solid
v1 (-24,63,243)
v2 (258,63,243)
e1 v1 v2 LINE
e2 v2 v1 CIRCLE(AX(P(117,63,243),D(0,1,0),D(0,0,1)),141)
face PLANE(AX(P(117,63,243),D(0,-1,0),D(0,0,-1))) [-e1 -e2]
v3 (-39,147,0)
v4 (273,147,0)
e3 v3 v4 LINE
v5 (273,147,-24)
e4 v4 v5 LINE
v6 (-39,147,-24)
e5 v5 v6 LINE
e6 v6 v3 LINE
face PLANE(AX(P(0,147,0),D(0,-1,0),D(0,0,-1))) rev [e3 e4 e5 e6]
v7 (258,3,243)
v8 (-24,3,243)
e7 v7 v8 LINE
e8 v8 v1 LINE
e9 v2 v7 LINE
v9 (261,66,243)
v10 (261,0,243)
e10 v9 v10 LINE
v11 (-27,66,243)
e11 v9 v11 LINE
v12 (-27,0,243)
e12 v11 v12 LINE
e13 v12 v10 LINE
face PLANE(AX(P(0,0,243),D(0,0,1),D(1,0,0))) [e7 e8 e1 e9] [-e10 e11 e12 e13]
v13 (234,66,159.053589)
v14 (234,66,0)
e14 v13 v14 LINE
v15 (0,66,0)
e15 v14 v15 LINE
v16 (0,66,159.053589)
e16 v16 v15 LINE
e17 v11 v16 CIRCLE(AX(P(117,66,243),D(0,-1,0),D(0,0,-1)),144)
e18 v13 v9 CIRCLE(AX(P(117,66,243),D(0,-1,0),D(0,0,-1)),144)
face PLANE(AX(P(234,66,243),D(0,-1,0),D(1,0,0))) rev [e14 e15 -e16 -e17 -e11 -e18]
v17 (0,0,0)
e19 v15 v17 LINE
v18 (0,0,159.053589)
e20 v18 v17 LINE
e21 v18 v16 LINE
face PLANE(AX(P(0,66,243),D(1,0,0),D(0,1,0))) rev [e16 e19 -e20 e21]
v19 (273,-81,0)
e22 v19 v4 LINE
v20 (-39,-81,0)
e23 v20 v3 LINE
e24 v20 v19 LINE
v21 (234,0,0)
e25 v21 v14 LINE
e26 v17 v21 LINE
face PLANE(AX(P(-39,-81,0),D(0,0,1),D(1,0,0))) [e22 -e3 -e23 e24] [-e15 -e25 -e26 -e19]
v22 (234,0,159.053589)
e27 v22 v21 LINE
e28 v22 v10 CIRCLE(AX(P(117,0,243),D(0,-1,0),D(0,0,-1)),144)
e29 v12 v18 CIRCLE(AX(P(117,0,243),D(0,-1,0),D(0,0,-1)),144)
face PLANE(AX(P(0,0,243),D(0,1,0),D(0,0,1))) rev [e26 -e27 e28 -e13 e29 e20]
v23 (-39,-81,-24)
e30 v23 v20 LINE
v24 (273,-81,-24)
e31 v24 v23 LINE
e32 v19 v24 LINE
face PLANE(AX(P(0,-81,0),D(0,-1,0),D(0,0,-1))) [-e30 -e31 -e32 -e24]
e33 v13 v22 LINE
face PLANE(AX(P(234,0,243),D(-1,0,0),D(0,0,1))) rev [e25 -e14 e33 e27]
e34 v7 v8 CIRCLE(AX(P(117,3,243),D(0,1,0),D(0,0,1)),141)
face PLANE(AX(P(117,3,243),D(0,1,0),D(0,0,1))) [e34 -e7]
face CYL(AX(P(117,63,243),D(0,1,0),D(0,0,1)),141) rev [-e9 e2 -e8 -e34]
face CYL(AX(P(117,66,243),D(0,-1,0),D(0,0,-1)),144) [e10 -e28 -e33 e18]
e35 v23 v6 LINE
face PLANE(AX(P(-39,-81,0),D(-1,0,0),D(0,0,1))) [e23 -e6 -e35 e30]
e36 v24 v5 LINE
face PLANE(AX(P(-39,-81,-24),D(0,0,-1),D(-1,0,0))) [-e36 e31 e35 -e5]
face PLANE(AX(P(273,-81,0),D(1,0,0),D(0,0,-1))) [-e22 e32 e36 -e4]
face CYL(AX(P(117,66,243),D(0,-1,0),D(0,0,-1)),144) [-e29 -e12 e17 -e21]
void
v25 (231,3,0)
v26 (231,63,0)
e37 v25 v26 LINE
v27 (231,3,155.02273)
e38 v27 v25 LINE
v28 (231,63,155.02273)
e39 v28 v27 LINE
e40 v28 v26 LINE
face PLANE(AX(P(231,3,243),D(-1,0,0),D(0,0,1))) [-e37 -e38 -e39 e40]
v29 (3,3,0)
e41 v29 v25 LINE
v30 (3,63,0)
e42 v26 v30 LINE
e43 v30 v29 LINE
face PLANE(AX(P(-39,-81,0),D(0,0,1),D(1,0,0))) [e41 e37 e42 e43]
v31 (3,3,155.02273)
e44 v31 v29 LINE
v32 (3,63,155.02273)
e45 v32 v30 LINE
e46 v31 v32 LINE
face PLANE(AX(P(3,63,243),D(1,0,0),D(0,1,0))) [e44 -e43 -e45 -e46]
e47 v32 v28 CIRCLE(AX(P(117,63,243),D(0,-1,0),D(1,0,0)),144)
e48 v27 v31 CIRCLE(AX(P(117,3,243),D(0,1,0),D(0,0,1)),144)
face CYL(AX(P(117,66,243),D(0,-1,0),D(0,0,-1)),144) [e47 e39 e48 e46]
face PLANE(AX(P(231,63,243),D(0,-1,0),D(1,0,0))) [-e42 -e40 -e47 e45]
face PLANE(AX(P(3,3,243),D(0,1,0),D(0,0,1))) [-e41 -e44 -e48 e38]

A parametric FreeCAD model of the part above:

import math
import FreeCAD as App
import Part
import Sketcher
from FreeCAD import Vector


def add_polygon(sketch, points):
    """Adds a closed chain of lines whose ends are joined by coincident constraints."""
    first, n = sketch.GeometryCount, len(points)
    for a, b in zip(points, points[1:] + points[:1]):
        sketch.addGeometry(Part.LineSegment(App.Vector(*a, 0), App.Vector(*b, 0)), False)
    for i in range(n):
        sketch.addConstraint(Sketcher.Constraint("Coincident", first + i, 2, first + (i + 1) % n, 1))

doc = App.newDocument("Part")
params = doc.addObject("Spreadsheet::Sheet", "Params")
for row, (alias, value) in enumerate([
    ("sketch1_width", "234 mm"),
    ("sketch1_width2", "228 mm"),
    ("sketch1_height", "66 mm"),
    ("sketch1_height2", "60 mm"),
    ("pad1_length", "243 mm"),
    ("sketch2_radius", "144 mm"),
    ("pad2_length", "66 mm"),
    ("sketch3_width", "141 mm"),
    ("sketch3_height", "60 mm"),
    ("groove_angle", "360 deg"),
    ("sketch4_width", "312 mm"),
    ("sketch4_height", "24 mm"),
    ("pad3_length", "147 mm"),
    ("pad3_length2", "81 mm"),
], start=1):
    params.set(f"A{row}", alias)
    params.set(f"B{row}", "=" + value)
    params.setAlias(f"B{row}", alias)

body = doc.addObject("PartDesign::Body", "Body")

# Sketch on XY plane
sketch1 = body.newObject("Sketcher::SketchObject", "Sketch")
sketch1.AttachmentSupport = (doc.getObject("XY_Plane"), [""])
sketch1.MapMode = "FlatFace"
add_polygon(sketch1, [(0, 66), (0, 0), (234, 0), (234, 66)])  # lines 0-3
add_polygon(sketch1, [(231, 3), (3, 3), (3, 63), (231, 63)])  # lines 4-7
sketch1.addConstraint([
    Sketcher.Constraint("Vertical", 0),
    Sketcher.Constraint("Horizontal", 1),
    Sketcher.Constraint("Vertical", 2),
    Sketcher.Constraint("Horizontal", 3),
    Sketcher.Constraint("Horizontal", 4),
    Sketcher.Constraint("Vertical", 5),
    Sketcher.Constraint("Horizontal", 6),
    Sketcher.Constraint("Vertical", 7),
    Sketcher.Constraint("Coincident", 0, 2, -1, 1),
    Sketcher.Constraint("DistanceX", 1, 1, 1, 2, 234.0),
    Sketcher.Constraint("DistanceX", 4, 2, 4, 1, 228.0),
    Sketcher.Constraint("DistanceY", 0, 2, 0, 1, 66.0),
    Sketcher.Constraint("DistanceY", 5, 1, 5, 2, 60.0),
    Sketcher.Constraint("DistanceX", -1, 1, 4, 2, 3.0),
    Sketcher.Constraint("DistanceY", -1, 1, 4, 2, 3.0),
])
sketch1.setExpression("Constraints[17]", "Params.sketch1_width")
sketch1.setExpression("Constraints[18]", "Params.sketch1_width2")
sketch1.setExpression("Constraints[19]", "Params.sketch1_height")
sketch1.setExpression("Constraints[20]", "Params.sketch1_height2")
pad1 = body.newObject("PartDesign::Pad", "Pad")
pad1.Profile = sketch1
pad1.setExpression("Length", "Params.pad1_length")

# Sketch on XZ plane
sketch2 = body.newObject("Sketcher::SketchObject", "Sketch001")
sketch2.AttachmentSupport = (doc.getObject("XZ_Plane"), [""])
sketch2.MapMode = "FlatFace"
sketch2.addGeometry([
    Part.LineSegment(Vector(261, 243, 0), Vector(-27, 243, 0)),
    Part.ArcOfCircle(Part.Circle(Vector(117, 243, 0), Vector(0, 0, 1), 144), math.radians(180), math.radians(360)),
], False)
sketch2.addConstraint([
    Sketcher.Constraint("Coincident", 0, 1, 1, 2),
    Sketcher.Constraint("Coincident", 1, 1, 0, 2),
    Sketcher.Constraint("Horizontal", 0),
    Sketcher.Constraint("Horizontal", 1, 3, 0, 1),
    Sketcher.Constraint("Radius", 1, 144.0),
    Sketcher.Constraint("DistanceX", -1, 1, 1, 3, 117.0),
    Sketcher.Constraint("DistanceY", -1, 1, 1, 3, 243.0),
])
sketch2.setExpression("Constraints[4]", "Params.sketch2_radius")
pad2 = body.newObject("PartDesign::Pad", "Pad001")
pad2.Profile = sketch2
pad2.setExpression("Length", "Params.pad2_length")
pad2.Reversed = True

# Sketch on XY plane
sketch3 = body.newObject("Sketcher::SketchObject", "Sketch002")
sketch3.AttachmentSupport = (doc.getObject("XY_Plane"), [""])
sketch3.MapMode = "FlatFace"
sketch3.AttachmentOffset = App.Placement(Vector(0, 0, 243), App.Rotation())
add_polygon(sketch3, [(117, 63), (117, 3), (258, 3), (258, 63)])  # lines 0-3
sketch3.addGeometry(Part.LineSegment(Vector(117, 63, 0), Vector(117, 3, 0)), True)  # axis
sketch3.addConstraint([
    Sketcher.Constraint("Vertical", 0),
    Sketcher.Constraint("Horizontal", 1),
    Sketcher.Constraint("Vertical", 2),
    Sketcher.Constraint("Horizontal", 3),
    Sketcher.Constraint("Vertical", 4),
    Sketcher.Constraint("Coincident", 4, 1, 3, 2),
    Sketcher.Constraint("Horizontal", 1, 2, 4, 2),
    Sketcher.Constraint("DistanceX", 1, 1, 1, 2, 141.0),
    Sketcher.Constraint("DistanceY", 0, 2, 0, 1, 60.0),
    Sketcher.Constraint("DistanceX", -1, 1, 0, 2, 117.0),
    Sketcher.Constraint("DistanceY", -1, 1, 0, 2, 3.0),
])
sketch3.setExpression("Constraints[11]", "Params.sketch3_width")
sketch3.setExpression("Constraints[12]", "Params.sketch3_height")
groove = body.newObject("PartDesign::Groove", "Groove")
groove.Profile = sketch3
groove.ReferenceAxis = (sketch3, ["Axis0"])
groove.setExpression("Angle", "Params.groove_angle")

# Sketch on XZ plane
sketch4 = body.newObject("Sketcher::SketchObject", "Sketch003")
sketch4.AttachmentSupport = (doc.getObject("XZ_Plane"), [""])
sketch4.MapMode = "FlatFace"
add_polygon(sketch4, [(-39, -24), (-39, 0), (273, 0), (273, -24)])  # lines 0-3
sketch4.addConstraint([
    Sketcher.Constraint("Vertical", 0),
    Sketcher.Constraint("Horizontal", 1),
    Sketcher.Constraint("Vertical", 2),
    Sketcher.Constraint("Horizontal", 3),
    Sketcher.Constraint("PointOnObject", 0, 2, -1),
    Sketcher.Constraint("DistanceX", 1, 1, 1, 2, 312.0),
    Sketcher.Constraint("DistanceY", 0, 1, 0, 2, 24.0),
    Sketcher.Constraint("DistanceX", 0, 2, -1, 1, 39.0),
])
sketch4.setExpression("Constraints[9]", "Params.sketch4_width")
sketch4.setExpression("Constraints[10]", "Params.sketch4_height")
pad3 = body.newObject("PartDesign::Pad", "Pad002")
pad3.Profile = sketch4
pad3.Type = "TwoLengths"
pad3.setExpression("Length", "Params.pad3_length")
pad3.setExpression("Length2", "Params.pad3_length2")
pad3.Reversed = True

doc.recompute()
